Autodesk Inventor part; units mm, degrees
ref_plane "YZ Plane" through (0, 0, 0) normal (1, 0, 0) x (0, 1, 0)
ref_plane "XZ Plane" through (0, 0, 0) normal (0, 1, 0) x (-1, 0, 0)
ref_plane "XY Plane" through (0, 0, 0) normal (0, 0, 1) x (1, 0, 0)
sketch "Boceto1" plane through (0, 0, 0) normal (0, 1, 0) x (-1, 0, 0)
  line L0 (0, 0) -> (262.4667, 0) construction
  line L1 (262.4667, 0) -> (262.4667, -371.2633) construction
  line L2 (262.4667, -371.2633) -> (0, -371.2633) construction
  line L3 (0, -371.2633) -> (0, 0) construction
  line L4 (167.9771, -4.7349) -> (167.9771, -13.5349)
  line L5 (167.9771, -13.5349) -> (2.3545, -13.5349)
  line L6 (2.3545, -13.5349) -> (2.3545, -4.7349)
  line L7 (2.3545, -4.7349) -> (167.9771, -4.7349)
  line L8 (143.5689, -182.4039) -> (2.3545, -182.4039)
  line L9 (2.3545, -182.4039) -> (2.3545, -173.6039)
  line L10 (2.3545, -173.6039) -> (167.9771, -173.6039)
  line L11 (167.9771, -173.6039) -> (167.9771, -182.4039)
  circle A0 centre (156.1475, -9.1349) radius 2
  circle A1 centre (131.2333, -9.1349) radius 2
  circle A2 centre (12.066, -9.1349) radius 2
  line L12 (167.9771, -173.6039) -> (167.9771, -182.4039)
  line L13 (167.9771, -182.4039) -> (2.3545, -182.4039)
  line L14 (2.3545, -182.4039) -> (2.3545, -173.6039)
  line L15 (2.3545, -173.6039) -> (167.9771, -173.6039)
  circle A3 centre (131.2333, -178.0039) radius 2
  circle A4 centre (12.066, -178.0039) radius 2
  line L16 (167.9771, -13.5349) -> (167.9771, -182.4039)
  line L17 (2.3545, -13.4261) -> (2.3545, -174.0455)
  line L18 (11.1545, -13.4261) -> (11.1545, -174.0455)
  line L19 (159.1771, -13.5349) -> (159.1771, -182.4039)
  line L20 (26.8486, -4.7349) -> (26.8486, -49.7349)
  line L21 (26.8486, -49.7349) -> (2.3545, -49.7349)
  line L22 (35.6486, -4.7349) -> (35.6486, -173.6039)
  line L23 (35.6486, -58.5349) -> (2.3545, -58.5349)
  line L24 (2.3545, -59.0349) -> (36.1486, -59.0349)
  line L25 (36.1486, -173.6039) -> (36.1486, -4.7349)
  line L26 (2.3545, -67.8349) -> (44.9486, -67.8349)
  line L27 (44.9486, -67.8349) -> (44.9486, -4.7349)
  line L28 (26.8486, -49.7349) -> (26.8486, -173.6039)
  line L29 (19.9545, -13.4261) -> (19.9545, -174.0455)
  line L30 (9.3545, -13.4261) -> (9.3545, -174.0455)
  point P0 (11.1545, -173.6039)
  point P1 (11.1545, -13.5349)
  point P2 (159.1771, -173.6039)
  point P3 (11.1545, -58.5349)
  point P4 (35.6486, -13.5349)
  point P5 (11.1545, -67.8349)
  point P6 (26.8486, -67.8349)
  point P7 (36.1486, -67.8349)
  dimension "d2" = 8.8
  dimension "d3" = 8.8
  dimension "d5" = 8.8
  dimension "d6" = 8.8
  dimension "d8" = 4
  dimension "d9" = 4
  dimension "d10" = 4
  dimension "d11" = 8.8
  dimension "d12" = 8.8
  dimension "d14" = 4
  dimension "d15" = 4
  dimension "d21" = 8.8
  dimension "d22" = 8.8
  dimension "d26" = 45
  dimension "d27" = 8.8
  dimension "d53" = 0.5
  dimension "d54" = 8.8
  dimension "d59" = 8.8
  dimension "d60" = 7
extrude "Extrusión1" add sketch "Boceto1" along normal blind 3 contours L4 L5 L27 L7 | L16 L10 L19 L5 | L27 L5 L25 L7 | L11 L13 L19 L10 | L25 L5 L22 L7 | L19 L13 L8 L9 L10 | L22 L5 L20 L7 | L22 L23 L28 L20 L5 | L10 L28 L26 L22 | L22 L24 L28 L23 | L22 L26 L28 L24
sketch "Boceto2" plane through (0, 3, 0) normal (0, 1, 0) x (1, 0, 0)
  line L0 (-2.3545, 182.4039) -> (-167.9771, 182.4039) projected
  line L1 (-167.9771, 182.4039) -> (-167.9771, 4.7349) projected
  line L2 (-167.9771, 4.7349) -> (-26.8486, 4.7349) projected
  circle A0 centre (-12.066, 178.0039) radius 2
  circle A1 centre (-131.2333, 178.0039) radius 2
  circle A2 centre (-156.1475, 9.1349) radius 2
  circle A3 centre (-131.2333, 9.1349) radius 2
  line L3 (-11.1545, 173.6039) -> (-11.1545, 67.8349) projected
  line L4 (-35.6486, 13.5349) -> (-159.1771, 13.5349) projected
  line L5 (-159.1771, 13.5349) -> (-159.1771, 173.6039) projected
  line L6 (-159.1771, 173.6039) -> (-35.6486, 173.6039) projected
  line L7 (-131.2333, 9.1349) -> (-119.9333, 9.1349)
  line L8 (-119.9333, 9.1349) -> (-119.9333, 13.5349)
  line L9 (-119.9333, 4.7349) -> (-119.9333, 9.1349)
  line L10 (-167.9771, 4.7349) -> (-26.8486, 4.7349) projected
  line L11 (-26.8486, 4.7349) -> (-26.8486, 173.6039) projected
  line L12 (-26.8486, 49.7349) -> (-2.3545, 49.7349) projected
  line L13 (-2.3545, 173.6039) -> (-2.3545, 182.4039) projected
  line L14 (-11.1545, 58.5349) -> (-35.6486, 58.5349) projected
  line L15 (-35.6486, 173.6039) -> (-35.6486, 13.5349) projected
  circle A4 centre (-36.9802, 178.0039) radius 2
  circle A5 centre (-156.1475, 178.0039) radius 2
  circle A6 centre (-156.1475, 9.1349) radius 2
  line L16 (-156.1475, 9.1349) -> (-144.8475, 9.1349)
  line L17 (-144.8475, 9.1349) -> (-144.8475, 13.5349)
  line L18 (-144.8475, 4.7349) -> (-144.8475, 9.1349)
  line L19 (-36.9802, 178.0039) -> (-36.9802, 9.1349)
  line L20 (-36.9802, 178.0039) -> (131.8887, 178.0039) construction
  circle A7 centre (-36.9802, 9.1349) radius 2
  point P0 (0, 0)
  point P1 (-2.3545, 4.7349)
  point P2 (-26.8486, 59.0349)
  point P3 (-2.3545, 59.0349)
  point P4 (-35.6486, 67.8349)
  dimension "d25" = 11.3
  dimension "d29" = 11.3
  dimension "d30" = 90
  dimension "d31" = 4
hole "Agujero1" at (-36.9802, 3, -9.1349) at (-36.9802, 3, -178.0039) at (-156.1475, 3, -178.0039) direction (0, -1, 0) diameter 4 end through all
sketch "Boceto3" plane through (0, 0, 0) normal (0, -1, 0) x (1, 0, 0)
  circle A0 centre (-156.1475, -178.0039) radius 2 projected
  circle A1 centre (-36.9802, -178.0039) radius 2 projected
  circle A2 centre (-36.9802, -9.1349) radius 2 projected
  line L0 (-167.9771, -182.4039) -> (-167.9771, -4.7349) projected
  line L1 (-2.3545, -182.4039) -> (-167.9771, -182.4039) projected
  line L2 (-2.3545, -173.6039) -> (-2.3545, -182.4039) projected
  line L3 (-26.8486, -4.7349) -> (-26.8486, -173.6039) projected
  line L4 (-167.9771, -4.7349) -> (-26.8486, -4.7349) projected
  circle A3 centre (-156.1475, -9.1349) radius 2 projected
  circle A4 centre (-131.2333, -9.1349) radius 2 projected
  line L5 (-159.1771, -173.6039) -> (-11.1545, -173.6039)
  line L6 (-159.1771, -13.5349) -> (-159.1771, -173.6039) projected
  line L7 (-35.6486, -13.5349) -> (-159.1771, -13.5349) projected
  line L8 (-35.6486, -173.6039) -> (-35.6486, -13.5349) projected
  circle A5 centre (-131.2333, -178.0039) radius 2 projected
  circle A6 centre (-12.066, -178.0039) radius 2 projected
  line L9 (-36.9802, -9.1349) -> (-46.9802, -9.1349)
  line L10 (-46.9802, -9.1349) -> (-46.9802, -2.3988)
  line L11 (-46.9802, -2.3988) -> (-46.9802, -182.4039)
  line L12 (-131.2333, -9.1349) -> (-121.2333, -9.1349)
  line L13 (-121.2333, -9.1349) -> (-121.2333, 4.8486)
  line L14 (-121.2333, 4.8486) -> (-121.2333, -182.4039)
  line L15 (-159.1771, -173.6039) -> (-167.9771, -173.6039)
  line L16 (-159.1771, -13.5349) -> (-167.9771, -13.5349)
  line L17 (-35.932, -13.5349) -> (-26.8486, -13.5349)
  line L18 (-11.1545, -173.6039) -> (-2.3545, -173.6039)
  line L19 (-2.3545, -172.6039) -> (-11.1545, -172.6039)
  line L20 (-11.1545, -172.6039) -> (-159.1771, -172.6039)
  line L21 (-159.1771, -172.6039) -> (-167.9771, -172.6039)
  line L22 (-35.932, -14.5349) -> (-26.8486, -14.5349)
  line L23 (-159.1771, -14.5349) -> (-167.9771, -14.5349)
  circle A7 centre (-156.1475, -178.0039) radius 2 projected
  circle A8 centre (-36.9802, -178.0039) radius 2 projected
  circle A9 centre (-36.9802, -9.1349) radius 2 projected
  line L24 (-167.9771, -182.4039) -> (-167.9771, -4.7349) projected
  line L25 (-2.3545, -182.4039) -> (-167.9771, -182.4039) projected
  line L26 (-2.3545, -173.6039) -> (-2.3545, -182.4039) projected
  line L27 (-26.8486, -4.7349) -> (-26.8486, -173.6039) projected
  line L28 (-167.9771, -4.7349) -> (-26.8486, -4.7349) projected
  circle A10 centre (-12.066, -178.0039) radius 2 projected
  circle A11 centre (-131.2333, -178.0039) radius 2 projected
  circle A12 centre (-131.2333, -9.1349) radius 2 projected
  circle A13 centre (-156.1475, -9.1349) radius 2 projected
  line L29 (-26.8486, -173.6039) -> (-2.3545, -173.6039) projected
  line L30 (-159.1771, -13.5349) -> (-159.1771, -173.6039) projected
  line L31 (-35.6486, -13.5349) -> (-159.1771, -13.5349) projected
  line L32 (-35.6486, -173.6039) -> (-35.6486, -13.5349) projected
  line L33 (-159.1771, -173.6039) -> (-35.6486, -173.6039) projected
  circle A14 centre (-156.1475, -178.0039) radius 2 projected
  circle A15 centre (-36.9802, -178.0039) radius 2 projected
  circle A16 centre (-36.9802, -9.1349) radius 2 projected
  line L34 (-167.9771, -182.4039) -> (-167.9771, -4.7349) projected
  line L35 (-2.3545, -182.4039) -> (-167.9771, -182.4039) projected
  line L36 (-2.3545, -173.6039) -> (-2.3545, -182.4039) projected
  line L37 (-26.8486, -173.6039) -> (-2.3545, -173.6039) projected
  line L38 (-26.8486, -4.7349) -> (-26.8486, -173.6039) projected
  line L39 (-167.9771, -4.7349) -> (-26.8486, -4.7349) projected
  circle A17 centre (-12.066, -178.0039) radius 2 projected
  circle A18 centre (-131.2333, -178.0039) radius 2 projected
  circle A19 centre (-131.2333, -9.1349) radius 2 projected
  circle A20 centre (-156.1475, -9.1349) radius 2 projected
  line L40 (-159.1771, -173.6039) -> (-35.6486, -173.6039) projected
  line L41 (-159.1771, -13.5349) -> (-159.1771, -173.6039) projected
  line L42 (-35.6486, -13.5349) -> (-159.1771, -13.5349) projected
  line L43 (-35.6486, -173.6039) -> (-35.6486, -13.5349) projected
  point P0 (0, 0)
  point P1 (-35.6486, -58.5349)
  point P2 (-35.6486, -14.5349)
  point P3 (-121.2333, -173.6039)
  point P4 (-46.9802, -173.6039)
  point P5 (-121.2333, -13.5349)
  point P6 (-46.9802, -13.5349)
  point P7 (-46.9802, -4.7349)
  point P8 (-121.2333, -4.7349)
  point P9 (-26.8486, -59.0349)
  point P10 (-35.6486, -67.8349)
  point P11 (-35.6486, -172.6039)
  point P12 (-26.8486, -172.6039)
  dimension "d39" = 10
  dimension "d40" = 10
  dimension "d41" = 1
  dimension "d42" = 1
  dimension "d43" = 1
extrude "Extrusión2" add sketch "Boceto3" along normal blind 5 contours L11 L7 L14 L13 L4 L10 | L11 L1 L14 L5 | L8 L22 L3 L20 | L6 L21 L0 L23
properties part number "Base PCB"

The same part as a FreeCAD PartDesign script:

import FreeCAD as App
import Part
import Sketcher
from FreeCAD import Vector
Q = App.Units.Quantity


def add_polygon(sketch, points):
    """Adds a closed chain of lines whose ends are joined by coincident constraints."""
    first, n = sketch.GeometryCount, len(points)
    for a, b in zip(points, points[1:] + points[:1]):
        sketch.addGeometry(Part.LineSegment(App.Vector(*a, 0), App.Vector(*b, 0)), False)
    for i in range(n):
        sketch.addConstraint(Sketcher.Constraint("Coincident", first + i, 2, first + (i + 1) % n, 1))

doc = App.newDocument("Part")
params = doc.addObject("Spreadsheet::Sheet", "Params")
for row, (alias, value) in enumerate([
    ("sketch1_diameter", "4 mm"),
    ("sketch1_height", "8.8 mm"),
    ("pad1_length", "3 mm"),
    ("sketch2_diameter", "4 mm"),
    ("hole_diameter", "4 mm"),
    ("sketch3_width", "8.8 mm"),
    ("pad2_length", "5 mm"),
], start=1):
    params.set(f"A{row}", alias)
    params.set(f"B{row}", "=" + value)
    params.setAlias(f"B{row}", alias)

body = doc.addObject("PartDesign::Body", "Body")

sketch1 = doc.addObject("Sketcher::SketchObject", "Sketch")
body.addObject(sketch1)
sketch1.AttachmentSupport = (doc.XZ_Plane, [""])
sketch1.MapMode = "FlatFace"
add_polygon(sketch1, [(-168, -4.7), (-26.8, -4.7), (-26.8, -173.6), (-2.4, -173.6), (-2.4, -182.4), (-168, -182.4)])
add_polygon(sketch1, [(-159.2, -13.5), (-159.2, -173.6), (-35.6, -173.6), (-35.6, -13.5)])
sketch1.addGeometry(Part.Circle(Vector(-131.2, -9.1, 0), Vector(0, 0, 1), 2), False)
sketch1.addGeometry(Part.Circle(Vector(-156.1, -9.1, 0), Vector(0, 0, 1), 2), False)
sketch1.addGeometry(Part.Circle(Vector(-131.2, -178, 0), Vector(0, 0, 1), 2), False)
sketch1.addGeometry(Part.Circle(Vector(-12.1, -178, 0), Vector(0, 0, 1), 2), False)
sketch1.addConstraint(Sketcher.Constraint("Horizontal", 0))
sketch1.addConstraint(Sketcher.Constraint("Vertical", 1))
sketch1.addConstraint(Sketcher.Constraint("Horizontal", 2))
sketch1.addConstraint(Sketcher.Constraint("Vertical", 3))
sketch1.addConstraint(Sketcher.Constraint("Horizontal", 4))
sketch1.addConstraint(Sketcher.Constraint("Vertical", 5))
sketch1.addConstraint(Sketcher.Constraint("Vertical", 6))
sketch1.addConstraint(Sketcher.Constraint("Horizontal", 7))
sketch1.addConstraint(Sketcher.Constraint("Vertical", 8))
sketch1.addConstraint(Sketcher.Constraint("Horizontal", 9))
sketch1.addConstraint(Sketcher.Constraint("Equal", 10, 11))
sketch1.addConstraint(Sketcher.Constraint("Equal", 11, 12))
sketch1.addConstraint(Sketcher.Constraint("Equal", 12, 13))
sketch1.addConstraint(Sketcher.Constraint("Horizontal", 10, 3, 11, 3))
sketch1.addConstraint(Sketcher.Constraint("Horizontal", 12, 3, 13, 3))
sketch1.addConstraint(Sketcher.Constraint("Horizontal", 2, 2, 6, 2))
sketch1.addConstraint(Sketcher.Constraint("Vertical", 10, 3, 12, 3))
sketch1.addConstraint(Sketcher.Constraint("Diameter", 10, Q("4 mm")))
sketch1.addConstraint(Sketcher.Constraint("DistanceY", 3, 2, 3, 1, Q("8.8 mm")))
sketch1.addConstraint(Sketcher.Constraint("DistanceX", 4, 2, 6, 2, Q("8.8 mm")))
sketch1.addConstraint(Sketcher.Constraint("DistanceX", 7, 2, 1, 2, Q("8.8 mm")))
sketch1.addConstraint(Sketcher.Constraint("DistanceY", 8, 2, 0, 2, Q("8.8 mm")))
sketch1.addConstraint(Sketcher.Constraint("DistanceY", 10, 3, 0, 2, Q("4.4 mm")))
sketch1.addConstraint(Sketcher.Constraint("DistanceY", 13, 3, 1, 2, Q("4.4 mm")))
sketch1.addConstraint(Sketcher.Constraint("DistanceX", 2, 1, 2, 2, Q("24.494 mm")))
sketch1.addConstraint(Sketcher.Constraint("DistanceY", 1, 2, 1, 1, Q("168.869 mm")))
sketch1.addConstraint(Sketcher.Constraint("DistanceX", 0, 1, 0, 2, Q("141.1285 mm")))
sketch1.addConstraint(Sketcher.Constraint("DistanceY", 10, 3, -1, 1, Q("9.135 mm")))
sketch1.addConstraint(Sketcher.Constraint("DistanceX", 13, 3, -1, 1, Q("12.066 mm")))
sketch1.addConstraint(Sketcher.Constraint("DistanceX", 4, 2, -1, 1, Q("167.977 mm")))
sketch1.addConstraint(Sketcher.Constraint("DistanceX", 11, 3, 0, 2, Q("129.299 mm")))
sketch1.addConstraint(Sketcher.Constraint("DistanceX", 10, 3, -1, 1, Q("131.2333 mm")))
sketch1.setExpression("Constraints[27]", "Params.sketch1_diameter")
sketch1.setExpression("Constraints[28]", "Params.sketch1_height")
pad1 = doc.addObject("PartDesign::Pad", "Pad")
body.addObject(pad1)
pad1.Profile = sketch1
pad1.setExpression("Length", "Params.pad1_length")
pad1.Reversed = True

sketch2 = doc.addObject("Sketcher::SketchObject", "Sketch001")
body.addObject(sketch2)
sketch2.AttachmentSupport = (doc.XZ_Plane, [""])
sketch2.MapMode = "FlatFace"
sketch2.AttachmentOffset = App.Placement(Vector(0, 0, -3), App.Rotation())
sketch2.addGeometry(Part.Circle(Vector(-37, -9.1, 0), Vector(0, 0, 1), 2), False)
sketch2.addGeometry(Part.Circle(Vector(-37, -178, 0), Vector(0, 0, 1), 2), False)
sketch2.addGeometry(Part.Circle(Vector(-156.1, -178, 0), Vector(0, 0, 1), 2), False)
sketch2.addConstraint(Sketcher.Constraint("Equal", 0, 1))
sketch2.addConstraint(Sketcher.Constraint("Equal", 1, 2))
sketch2.addConstraint(Sketcher.Constraint("Horizontal", 1, 3, 2, 3))
sketch2.addConstraint(Sketcher.Constraint("Vertical", 0, 3, 1, 3))
sketch2.addConstraint(Sketcher.Constraint("Diameter", 0, Q("4 mm")))
sketch2.addConstraint(Sketcher.Constraint("DistanceY", 0, 3, -1, 1, Q("9.135 mm")))
sketch2.addConstraint(Sketcher.Constraint("DistanceY", 1, 3, -1, 1, Q("178.004 mm")))
sketch2.addConstraint(Sketcher.Constraint("DistanceX", 0, 3, -1, 1, Q("36.9802 mm")))
sketch2.addConstraint(Sketcher.Constraint("DistanceX", 2, 3, -1, 1, Q("156.1475 mm")))
sketch2.setExpression("Constraints[4]", "Params.sketch2_diameter")
doc.recompute()
hole = doc.addObject("PartDesign::Hole", "Hole")
body.addObject(hole)
hole.Profile = sketch2
hole.ThreadType = "None"
hole.setExpression("Diameter", "Params.hole_diameter")
hole.DepthType = "ThroughAll"
hole.Reversed = True

sketch3 = doc.addObject("Sketcher::SketchObject", "Sketch002")
body.addObject(sketch3)
sketch3.AttachmentSupport = (doc.XZ_Plane, [""])
sketch3.MapMode = "FlatFace"
add_polygon(sketch3, [(-47, -14), (-47, -5), (-121, -5), (-121, -14)])
add_polygon(sketch3, [(-47, -182), (-47, -174), (-121, -174), (-121, -182)])
add_polygon(sketch3, [(-36, -15), (-36, -173), (-27, -173), (-27, -15)])
add_polygon(sketch3, [(-159, -173), (-159, -15), (-168, -15), (-168, -173)])
sketch3.addConstraint(Sketcher.Constraint("Vertical", 0))
sketch3.addConstraint(Sketcher.Constraint("Horizontal", 1))
sketch3.addConstraint(Sketcher.Constraint("Vertical", 2))
sketch3.addConstraint(Sketcher.Constraint("Horizontal", 3))
sketch3.addConstraint(Sketcher.Constraint("Vertical", 4))
sketch3.addConstraint(Sketcher.Constraint("Horizontal", 5))
sketch3.addConstraint(Sketcher.Constraint("Vertical", 6))
sketch3.addConstraint(Sketcher.Constraint("Horizontal", 7))
sketch3.addConstraint(Sketcher.Constraint("Vertical", 8))
sketch3.addConstraint(Sketcher.Constraint("Horizontal", 9))
sketch3.addConstraint(Sketcher.Constraint("Vertical", 10))
sketch3.addConstraint(Sketcher.Constraint("Horizontal", 11))
sketch3.addConstraint(Sketcher.Constraint("Vertical", 12))
sketch3.addConstraint(Sketcher.Constraint("Horizontal", 13))
sketch3.addConstraint(Sketcher.Constraint("Vertical", 14))
sketch3.addConstraint(Sketcher.Constraint("Horizontal", 15))
sketch3.addConstraint(Sketcher.Constraint("Horizontal", 11, 2, 12, 2))
sketch3.addConstraint(Sketcher.Constraint("Horizontal", 9, 2, 14, 2))
sketch3.addConstraint(Sketcher.Constraint("Vertical", 3, 2, 4, 2))
sketch3.addConstraint(Sketcher.Constraint("Vertical", 2, 2, 5, 2))
sketch3.addConstraint(Sketcher.Constraint("Equal", 11, 13))
sketch3.addConstraint(Sketcher.Constraint("Equal", 15, 0))
sketch3.addConstraint(Sketcher.Constraint("Equal", 2, 4))
sketch3.addConstraint(Sketcher.Constraint("DistanceY", 4, 2, 8, 2, Q("1 mm")))
sketch3.addConstraint(Sketcher.Constraint("DistanceY", 10, 2, 3, 2, Q("1 mm")))
sketch3.addConstraint(Sketcher.Constraint("DistanceX", 9, 1, 9, 2, Q("8.8 mm")))
sketch3.addConstraint(Sketcher.Constraint("DistanceX", 1, 2, 1, 1, Q("74.253 mm")))
sketch3.addConstraint(Sketcher.Constraint("DistanceY", 8, 2, 8, 1, Q("158.069 mm")))
sketch3.addConstraint(Sketcher.Constraint("DistanceY", 0, 2, -1, 1, Q("4.735 mm")))
sketch3.addConstraint(Sketcher.Constraint("DistanceX", 12, 2, -1, 1, Q("159.177 mm")))
sketch3.addConstraint(Sketcher.Constraint("DistanceX", 12, 2, 3, 2, Q("112.197 mm")))
sketch3.addConstraint(Sketcher.Constraint("DistanceX", 8, 2, -1, 1, Q("35.6486 mm")))
sketch3.setExpression("Constraints[41]", "Params.sketch3_width")
pad2 = doc.addObject("PartDesign::Pad", "Pad001")
body.addObject(pad2)
pad2.Profile = sketch3
pad2.setExpression("Length", "Params.pad2_length")

doc.recompute()
